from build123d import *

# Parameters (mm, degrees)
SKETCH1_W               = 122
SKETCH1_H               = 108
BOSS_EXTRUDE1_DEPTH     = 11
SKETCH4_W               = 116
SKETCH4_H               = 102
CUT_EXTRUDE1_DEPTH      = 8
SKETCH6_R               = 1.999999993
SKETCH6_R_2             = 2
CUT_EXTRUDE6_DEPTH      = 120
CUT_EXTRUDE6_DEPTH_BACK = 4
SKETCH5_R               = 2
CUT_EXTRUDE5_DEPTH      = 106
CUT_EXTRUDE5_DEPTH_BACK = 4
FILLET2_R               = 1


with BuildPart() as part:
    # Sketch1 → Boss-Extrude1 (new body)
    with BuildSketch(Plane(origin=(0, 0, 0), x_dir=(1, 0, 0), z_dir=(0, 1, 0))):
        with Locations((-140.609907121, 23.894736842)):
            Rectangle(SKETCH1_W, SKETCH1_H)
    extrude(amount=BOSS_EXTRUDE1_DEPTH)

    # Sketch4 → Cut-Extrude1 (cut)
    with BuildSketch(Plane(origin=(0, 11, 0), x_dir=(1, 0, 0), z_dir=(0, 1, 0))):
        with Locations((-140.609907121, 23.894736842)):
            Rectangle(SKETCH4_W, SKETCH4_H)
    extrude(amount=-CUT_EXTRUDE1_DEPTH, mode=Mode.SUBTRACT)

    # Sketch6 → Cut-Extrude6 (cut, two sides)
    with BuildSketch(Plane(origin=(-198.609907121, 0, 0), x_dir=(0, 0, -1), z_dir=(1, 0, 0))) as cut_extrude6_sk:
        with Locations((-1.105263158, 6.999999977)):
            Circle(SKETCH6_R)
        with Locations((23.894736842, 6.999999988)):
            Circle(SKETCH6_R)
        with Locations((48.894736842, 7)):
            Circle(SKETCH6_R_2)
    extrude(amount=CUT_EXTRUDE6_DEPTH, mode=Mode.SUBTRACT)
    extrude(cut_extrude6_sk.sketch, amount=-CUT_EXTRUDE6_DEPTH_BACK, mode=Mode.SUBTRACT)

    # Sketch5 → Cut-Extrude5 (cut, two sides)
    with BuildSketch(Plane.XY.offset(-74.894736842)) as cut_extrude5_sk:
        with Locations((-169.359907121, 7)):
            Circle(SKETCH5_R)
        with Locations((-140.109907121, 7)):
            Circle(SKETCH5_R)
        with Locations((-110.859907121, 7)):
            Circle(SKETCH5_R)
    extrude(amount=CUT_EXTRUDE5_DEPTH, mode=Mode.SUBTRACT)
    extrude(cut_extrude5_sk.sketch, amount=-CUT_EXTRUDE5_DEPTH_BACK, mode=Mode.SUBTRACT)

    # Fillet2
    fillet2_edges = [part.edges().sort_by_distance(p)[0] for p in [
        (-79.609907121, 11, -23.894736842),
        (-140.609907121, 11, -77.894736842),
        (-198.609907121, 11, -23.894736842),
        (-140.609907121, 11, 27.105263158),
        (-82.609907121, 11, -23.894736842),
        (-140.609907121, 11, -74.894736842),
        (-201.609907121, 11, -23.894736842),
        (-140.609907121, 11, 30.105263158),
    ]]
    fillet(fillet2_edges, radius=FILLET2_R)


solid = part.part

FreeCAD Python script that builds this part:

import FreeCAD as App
import Part
import Sketcher
from FreeCAD import Vector
Q = App.Units.Quantity


def edges_at(feature, points):
    """Names of the edges that pass closest to the given points."""
    edges = feature.Shape.Edges
    near = lambda p: min(range(len(edges)), key=lambda i: edges[i].distToShape(Part.Vertex(*p))[0])
    return sorted({f"Edge{near(p) + 1}" for p in points})


def add_polygon(sketch, points):
    """Adds a closed chain of lines whose ends are joined by coincident constraints."""
    first, n = sketch.GeometryCount, len(points)
    for a, b in zip(points, points[1:] + points[:1]):
        sketch.addGeometry(Part.LineSegment(App.Vector(*a, 0), App.Vector(*b, 0)), False)
    for i in range(n):
        sketch.addConstraint(Sketcher.Constraint("Coincident", first + i, 2, first + (i + 1) % n, 1))

doc = App.newDocument("Part")
body = doc.addObject("PartDesign::Body", "Body")

sketch1 = doc.addObject("Sketcher::SketchObject", "Sketch")
body.addObject(sketch1)
sketch1.AttachmentSupport = (doc.XZ_Plane, [""])
sketch1.MapMode = "FlatFace"
add_polygon(sketch1, [(-201.609907, -77.894737), (-201.609907, 30.105263), (-79.609907, 30.105263), (-79.609907, -77.894737)])
sketch1.addConstraint([
    Sketcher.Constraint("Vertical", 0),
    Sketcher.Constraint("Horizontal", 1),
    Sketcher.Constraint("Vertical", 2),
    Sketcher.Constraint("Horizontal", 3),
    Sketcher.Constraint("DistanceX", 1, 1, 1, 2, Q("122 mm")),
    Sketcher.Constraint("DistanceY", 0, 1, 0, 2, Q("108 mm")),
    Sketcher.Constraint("DistanceX", 0, 2, -1, 1, Q("201.609907 mm")),
    Sketcher.Constraint("DistanceY", -1, 1, 0, 2, Q("30.105263 mm")),
])
pad1 = doc.addObject("PartDesign::Pad", "Pad")
body.addObject(pad1)
pad1.Profile = sketch1
pad1.Length = 11
pad1.Reversed = True

sketch2 = doc.addObject("Sketcher::SketchObject", "Sketch001")
body.addObject(sketch2)
sketch2.AttachmentSupport = (doc.XZ_Plane, [""])
sketch2.MapMode = "FlatFace"
sketch2.AttachmentOffset = App.Placement(Vector(0, 0, -11), App.Rotation())
add_polygon(sketch2, [(-198.609907, -74.894737), (-198.609907, 27.105263), (-82.609907, 27.105263), (-82.609907, -74.894737)])
sketch2.addConstraint([
    Sketcher.Constraint("Vertical", 0),
    Sketcher.Constraint("Horizontal", 1),
    Sketcher.Constraint("Vertical", 2),
    Sketcher.Constraint("Horizontal", 3),
    Sketcher.Constraint("DistanceX", 1, 1, 1, 2, Q("116 mm")),
    Sketcher.Constraint("DistanceY", 0, 1, 0, 2, Q("102 mm")),
    Sketcher.Constraint("DistanceX", 0, 2, -1, 1, Q("198.609907 mm")),
    Sketcher.Constraint("DistanceY", -1, 1, 0, 2, Q("27.105263 mm")),
])
pocket1 = doc.addObject("PartDesign::Pocket", "Pocket")
body.addObject(pocket1)
pocket1.Profile = sketch2
pocket1.Length = 8
pocket1.Reversed = True

sketch3 = doc.addObject("Sketcher::SketchObject", "Sketch002")
body.addObject(sketch3)
sketch3.AttachmentSupport = (doc.YZ_Plane, [""])
sketch3.MapMode = "FlatFace"
sketch3.AttachmentOffset = App.Placement(Vector(0, 0, -198.609907), App.Rotation())
sketch3.addGeometry([
    Part.Circle(Vector(7, 1.105263, 0), Vector(0, 0, 1), 2),
    Part.Circle(Vector(7, -23.894737, 0), Vector(0, 0, 1), 2),
    Part.Circle(Vector(7, -48.894737, 0), Vector(0, 0, 1), 2),
], False)
sketch3.addConstraint([
    Sketcher.Constraint("Equal", 0, 1),
    Sketcher.Constraint("Equal", 1, 2),
    Sketcher.Constraint("Vertical", 0, 3, 1, 3),
    Sketcher.Constraint("Vertical", 1, 3, 2, 3),
    Sketcher.Constraint("Diameter", 0, Q("4 mm")),
    Sketcher.Constraint("DistanceX", -1, 1, 0, 3, Q("7 mm")),
    Sketcher.Constraint("DistanceY", 1, 3, 0, 3, Q("25 mm")),
    Sketcher.Constraint("DistanceY", 2, 3, 1, 3, Q("25 mm")),
    Sketcher.Constraint("DistanceY", -1, 1, 0, 3, Q("1.105263 mm")),
])
pocket2 = doc.addObject("PartDesign::Pocket", "Pocket001")
body.addObject(pocket2)
pocket2.Profile = sketch3
pocket2.Type = "ThroughAll"
pocket2.Midplane = True

sketch4 = doc.addObject("Sketcher::SketchObject", "Sketch003")
body.addObject(sketch4)
sketch4.AttachmentSupport = (doc.XY_Plane, [""])
sketch4.MapMode = "FlatFace"
sketch4.AttachmentOffset = App.Placement(Vector(0, 0, -74.894737), App.Rotation())
sketch4.addGeometry([
    Part.Circle(Vector(-169.359907, 7, 0), Vector(0, 0, 1), 2),
    Part.Circle(Vector(-140.109907, 7, 0), Vector(0, 0, 1), 2),
    Part.Circle(Vector(-110.859907, 7, 0), Vector(0, 0, 1), 2),
], False)
sketch4.addConstraint([
    Sketcher.Constraint("Equal", 0, 1),
    Sketcher.Constraint("Equal", 1, 2),
    Sketcher.Constraint("Horizontal", 0, 3, 1, 3),
    Sketcher.Constraint("Horizontal", 1, 3, 2, 3),
    Sketcher.Constraint("Diameter", 0, Q("4 mm")),
    Sketcher.Constraint("DistanceY", -1, 1, 0, 3, Q("7 mm")),
    Sketcher.Constraint("DistanceX", 0, 3, 2, 3, Q("58.5 mm")),
    Sketcher.Constraint("DistanceX", 0, 3, 1, 3, Q("29.25 mm")),
    Sketcher.Constraint("DistanceX", 0, 3, -1, 1, Q("169.359907 mm")),
])
pocket3 = doc.addObject("PartDesign::Pocket", "Pocket002")
body.addObject(pocket3)
pocket3.Profile = sketch4
pocket3.Type = "ThroughAll"
pocket3.Midplane = True
doc.recompute()

fillet = doc.addObject("PartDesign::Fillet", "Fillet")
body.addObject(fillet)
fillet.Base = (pocket3, edges_at(pocket3, [
    (-79.61, 11, -23.895),
    (-140.61, 11, -77.895),
    (-198.61, 11, -23.895),
    (-140.61, 11, 27.105),
    (-82.61, 11, -23.895),
    (-140.61, 11, -74.895),
    (-201.61, 11, -23.895),
    (-140.61, 11, 30.105),
]))
fillet.Radius = 1

doc.recompute()
